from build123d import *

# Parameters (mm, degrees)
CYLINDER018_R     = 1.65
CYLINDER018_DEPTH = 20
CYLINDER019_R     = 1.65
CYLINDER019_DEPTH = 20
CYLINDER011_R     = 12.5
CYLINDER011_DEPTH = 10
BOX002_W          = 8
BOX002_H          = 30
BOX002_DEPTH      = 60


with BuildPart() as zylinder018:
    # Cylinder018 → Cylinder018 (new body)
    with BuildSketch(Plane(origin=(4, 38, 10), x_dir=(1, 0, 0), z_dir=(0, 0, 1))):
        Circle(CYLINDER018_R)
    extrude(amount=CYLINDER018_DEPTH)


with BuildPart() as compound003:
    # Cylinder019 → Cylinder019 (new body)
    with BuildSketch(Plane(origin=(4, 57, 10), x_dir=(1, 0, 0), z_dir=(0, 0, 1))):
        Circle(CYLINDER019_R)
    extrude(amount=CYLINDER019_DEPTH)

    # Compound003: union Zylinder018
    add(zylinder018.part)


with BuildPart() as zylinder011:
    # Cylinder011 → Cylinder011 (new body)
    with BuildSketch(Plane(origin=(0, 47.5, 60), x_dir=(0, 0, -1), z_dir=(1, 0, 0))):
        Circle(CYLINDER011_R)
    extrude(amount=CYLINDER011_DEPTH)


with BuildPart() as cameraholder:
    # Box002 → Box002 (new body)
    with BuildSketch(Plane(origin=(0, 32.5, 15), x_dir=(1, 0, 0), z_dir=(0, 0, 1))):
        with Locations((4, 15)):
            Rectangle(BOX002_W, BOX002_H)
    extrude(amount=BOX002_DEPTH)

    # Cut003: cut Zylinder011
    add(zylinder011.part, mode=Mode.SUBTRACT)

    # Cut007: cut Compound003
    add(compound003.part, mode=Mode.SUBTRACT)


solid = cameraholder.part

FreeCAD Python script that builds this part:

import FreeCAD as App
import Part
import Sketcher

V = App.Vector
Q = App.Units.Quantity

doc = App.newDocument("Part")
params = doc.addObject("Spreadsheet::Sheet", "Params")
for row, (alias, value) in enumerate([
    ("sketch1_diameter", "3.3 mm"),
    ("pad1_length", "20 mm"),
    ("sketch2_diameter", "3.3 mm"),
    ("pad2_length", "20 mm"),
    ("sketch3_diameter", "25 mm"),
    ("pad3_length", "10 mm"),
    ("sketch4_width", "8 mm"),
    ("sketch4_height", "30 mm"),
    ("pad4_length", "60 mm"),
], start=1):
    params.set(f"A{row}", alias)
    params.set(f"B{row}", "=" + value)
    params.setAlias(f"B{row}", alias)

body = doc.addObject("PartDesign::Body", "Body")

sketch1 = doc.addObject("Sketcher::SketchObject", "Sketch")
body.addObject(sketch1)
sketch1.AttachmentSupport = (doc.XY_Plane, [""])
sketch1.MapMode = "FlatFace"
sketch1.AttachmentOffset = App.Placement(V(0, 0, 10), App.Rotation())
sketch1.addGeometry(Part.Circle(V(4, 38, 0), V(0, 0, 1), 1.65), False)
sketch1.addConstraint(Sketcher.Constraint("Diameter", 0, Q("3.3 mm")))
sketch1.addConstraint(Sketcher.Constraint("DistanceX", -1, 1, 0, 3, Q("4 mm")))
sketch1.addConstraint(Sketcher.Constraint("DistanceY", -1, 1, 0, 3, Q("38 mm")))
sketch1.setExpression("Constraints[0]", "Params.sketch1_diameter")
pad1 = doc.addObject("PartDesign::Pad", "Pad")
body.addObject(pad1)
pad1.Profile = sketch1
pad1.setExpression("Length", "Params.pad1_length")
body2 = doc.addObject("PartDesign::Body", "Body001")
body2.AllowCompound = True

sketch2 = doc.addObject("Sketcher::SketchObject", "Sketch001")
body2.addObject(sketch2)
sketch2.AttachmentSupport = (doc.getObject("XY_Plane001"), [""])
sketch2.MapMode = "FlatFace"
sketch2.AttachmentOffset = App.Placement(V(0, 0, 10), App.Rotation())
sketch2.addGeometry(Part.Circle(V(4, 57, 0), V(0, 0, 1), 1.65), False)
sketch2.addConstraint(Sketcher.Constraint("Diameter", 0, Q("3.3 mm")))
sketch2.addConstraint(Sketcher.Constraint("DistanceX", -1, 1, 0, 3, Q("4 mm")))
sketch2.addConstraint(Sketcher.Constraint("DistanceY", -1, 1, 0, 3, Q("57 mm")))
sketch2.setExpression("Constraints[0]", "Params.sketch2_diameter")
pad2 = doc.addObject("PartDesign::Pad", "Pad001")
body2.addObject(pad2)
pad2.Profile = sketch2
pad2.setExpression("Length", "Params.pad2_length")
doc.recompute()

boolean = doc.addObject("PartDesign::Boolean", "Boolean")
body2.addObject(boolean)
boolean.Type = "Fuse"
boolean.addObjects([body])
body3 = doc.addObject("PartDesign::Body", "Body002")

sketch3 = doc.addObject("Sketcher::SketchObject", "Sketch002")
body3.addObject(sketch3)
sketch3.AttachmentSupport = (doc.getObject("YZ_Plane002"), [""])
sketch3.MapMode = "FlatFace"
sketch3.addGeometry(Part.Circle(V(47.5, 60, 0), V(0, 0, 1), 12.5), False)
sketch3.addConstraint(Sketcher.Constraint("Diameter", 0, Q("25 mm")))
sketch3.addConstraint(Sketcher.Constraint("DistanceY", -1, 1, 0, 3, Q("60 mm")))
sketch3.addConstraint(Sketcher.Constraint("DistanceX", -1, 1, 0, 3, Q("47.5 mm")))
sketch3.setExpression("Constraints[0]", "Params.sketch3_diameter")
pad3 = doc.addObject("PartDesign::Pad", "Pad002")
body3.addObject(pad3)
pad3.Profile = sketch3
pad3.setExpression("Length", "Params.pad3_length")
body4 = doc.addObject("PartDesign::Body", "Body003")

sketch4 = doc.addObject("Sketcher::SketchObject", "Sketch003")
body4.addObject(sketch4)
sketch4.AttachmentSupport = (doc.getObject("XY_Plane003"), [""])
sketch4.MapMode = "FlatFace"
sketch4.AttachmentOffset = App.Placement(V(0, 0, 15), App.Rotation())
sketch4.addGeometry(Part.LineSegment(V(0, 62.5, 0), V(0, 32.5, 0)), False)
sketch4.addGeometry(Part.LineSegment(V(0, 32.5, 0), V(8, 32.5, 0)), False)
sketch4.addGeometry(Part.LineSegment(V(8, 32.5, 0), V(8, 62.5, 0)), False)
sketch4.addGeometry(Part.LineSegment(V(8, 62.5, 0), V(0, 62.5, 0)), False)
sketch4.addConstraint(Sketcher.Constraint("Coincident", 0, 2, 1, 1))
sketch4.addConstraint(Sketcher.Constraint("Coincident", 1, 2, 2, 1))
sketch4.addConstraint(Sketcher.Constraint("Coincident", 2, 2, 3, 1))
sketch4.addConstraint(Sketcher.Constraint("Coincident", 3, 2, 0, 1))
sketch4.addConstraint(Sketcher.Constraint("Vertical", 0))
sketch4.addConstraint(Sketcher.Constraint("Horizontal", 1))
sketch4.addConstraint(Sketcher.Constraint("Vertical", 2))
sketch4.addConstraint(Sketcher.Constraint("Horizontal", 3))
sketch4.addConstraint(Sketcher.Constraint("PointOnObject", 0, 2, -2))
sketch4.addConstraint(Sketcher.Constraint("DistanceX", 1, 1, 1, 2, Q("8 mm")))
sketch4.addConstraint(Sketcher.Constraint("DistanceY", 0, 2, 0, 1, Q("30 mm")))
sketch4.addConstraint(Sketcher.Constraint("DistanceY", -1, 1, 0, 2, Q("32.5 mm")))
sketch4.setExpression("Constraints[9]", "Params.sketch4_width")
sketch4.setExpression("Constraints[10]", "Params.sketch4_height")
pad4 = doc.addObject("PartDesign::Pad", "Pad003")
body4.addObject(pad4)
pad4.Profile = sketch4
pad4.setExpression("Length", "Params.pad4_length")
doc.recompute()

boolean2 = doc.addObject("PartDesign::Boolean", "Boolean001")
body4.addObject(boolean2)
boolean2.Type = "Cut"
boolean2.addObjects([body3])
doc.recompute()

boolean3 = doc.addObject("PartDesign::Boolean", "Boolean002")
body4.addObject(boolean3)
boolean3.Type = "Cut"
boolean3.addObjects([body2])

doc.recompute()
